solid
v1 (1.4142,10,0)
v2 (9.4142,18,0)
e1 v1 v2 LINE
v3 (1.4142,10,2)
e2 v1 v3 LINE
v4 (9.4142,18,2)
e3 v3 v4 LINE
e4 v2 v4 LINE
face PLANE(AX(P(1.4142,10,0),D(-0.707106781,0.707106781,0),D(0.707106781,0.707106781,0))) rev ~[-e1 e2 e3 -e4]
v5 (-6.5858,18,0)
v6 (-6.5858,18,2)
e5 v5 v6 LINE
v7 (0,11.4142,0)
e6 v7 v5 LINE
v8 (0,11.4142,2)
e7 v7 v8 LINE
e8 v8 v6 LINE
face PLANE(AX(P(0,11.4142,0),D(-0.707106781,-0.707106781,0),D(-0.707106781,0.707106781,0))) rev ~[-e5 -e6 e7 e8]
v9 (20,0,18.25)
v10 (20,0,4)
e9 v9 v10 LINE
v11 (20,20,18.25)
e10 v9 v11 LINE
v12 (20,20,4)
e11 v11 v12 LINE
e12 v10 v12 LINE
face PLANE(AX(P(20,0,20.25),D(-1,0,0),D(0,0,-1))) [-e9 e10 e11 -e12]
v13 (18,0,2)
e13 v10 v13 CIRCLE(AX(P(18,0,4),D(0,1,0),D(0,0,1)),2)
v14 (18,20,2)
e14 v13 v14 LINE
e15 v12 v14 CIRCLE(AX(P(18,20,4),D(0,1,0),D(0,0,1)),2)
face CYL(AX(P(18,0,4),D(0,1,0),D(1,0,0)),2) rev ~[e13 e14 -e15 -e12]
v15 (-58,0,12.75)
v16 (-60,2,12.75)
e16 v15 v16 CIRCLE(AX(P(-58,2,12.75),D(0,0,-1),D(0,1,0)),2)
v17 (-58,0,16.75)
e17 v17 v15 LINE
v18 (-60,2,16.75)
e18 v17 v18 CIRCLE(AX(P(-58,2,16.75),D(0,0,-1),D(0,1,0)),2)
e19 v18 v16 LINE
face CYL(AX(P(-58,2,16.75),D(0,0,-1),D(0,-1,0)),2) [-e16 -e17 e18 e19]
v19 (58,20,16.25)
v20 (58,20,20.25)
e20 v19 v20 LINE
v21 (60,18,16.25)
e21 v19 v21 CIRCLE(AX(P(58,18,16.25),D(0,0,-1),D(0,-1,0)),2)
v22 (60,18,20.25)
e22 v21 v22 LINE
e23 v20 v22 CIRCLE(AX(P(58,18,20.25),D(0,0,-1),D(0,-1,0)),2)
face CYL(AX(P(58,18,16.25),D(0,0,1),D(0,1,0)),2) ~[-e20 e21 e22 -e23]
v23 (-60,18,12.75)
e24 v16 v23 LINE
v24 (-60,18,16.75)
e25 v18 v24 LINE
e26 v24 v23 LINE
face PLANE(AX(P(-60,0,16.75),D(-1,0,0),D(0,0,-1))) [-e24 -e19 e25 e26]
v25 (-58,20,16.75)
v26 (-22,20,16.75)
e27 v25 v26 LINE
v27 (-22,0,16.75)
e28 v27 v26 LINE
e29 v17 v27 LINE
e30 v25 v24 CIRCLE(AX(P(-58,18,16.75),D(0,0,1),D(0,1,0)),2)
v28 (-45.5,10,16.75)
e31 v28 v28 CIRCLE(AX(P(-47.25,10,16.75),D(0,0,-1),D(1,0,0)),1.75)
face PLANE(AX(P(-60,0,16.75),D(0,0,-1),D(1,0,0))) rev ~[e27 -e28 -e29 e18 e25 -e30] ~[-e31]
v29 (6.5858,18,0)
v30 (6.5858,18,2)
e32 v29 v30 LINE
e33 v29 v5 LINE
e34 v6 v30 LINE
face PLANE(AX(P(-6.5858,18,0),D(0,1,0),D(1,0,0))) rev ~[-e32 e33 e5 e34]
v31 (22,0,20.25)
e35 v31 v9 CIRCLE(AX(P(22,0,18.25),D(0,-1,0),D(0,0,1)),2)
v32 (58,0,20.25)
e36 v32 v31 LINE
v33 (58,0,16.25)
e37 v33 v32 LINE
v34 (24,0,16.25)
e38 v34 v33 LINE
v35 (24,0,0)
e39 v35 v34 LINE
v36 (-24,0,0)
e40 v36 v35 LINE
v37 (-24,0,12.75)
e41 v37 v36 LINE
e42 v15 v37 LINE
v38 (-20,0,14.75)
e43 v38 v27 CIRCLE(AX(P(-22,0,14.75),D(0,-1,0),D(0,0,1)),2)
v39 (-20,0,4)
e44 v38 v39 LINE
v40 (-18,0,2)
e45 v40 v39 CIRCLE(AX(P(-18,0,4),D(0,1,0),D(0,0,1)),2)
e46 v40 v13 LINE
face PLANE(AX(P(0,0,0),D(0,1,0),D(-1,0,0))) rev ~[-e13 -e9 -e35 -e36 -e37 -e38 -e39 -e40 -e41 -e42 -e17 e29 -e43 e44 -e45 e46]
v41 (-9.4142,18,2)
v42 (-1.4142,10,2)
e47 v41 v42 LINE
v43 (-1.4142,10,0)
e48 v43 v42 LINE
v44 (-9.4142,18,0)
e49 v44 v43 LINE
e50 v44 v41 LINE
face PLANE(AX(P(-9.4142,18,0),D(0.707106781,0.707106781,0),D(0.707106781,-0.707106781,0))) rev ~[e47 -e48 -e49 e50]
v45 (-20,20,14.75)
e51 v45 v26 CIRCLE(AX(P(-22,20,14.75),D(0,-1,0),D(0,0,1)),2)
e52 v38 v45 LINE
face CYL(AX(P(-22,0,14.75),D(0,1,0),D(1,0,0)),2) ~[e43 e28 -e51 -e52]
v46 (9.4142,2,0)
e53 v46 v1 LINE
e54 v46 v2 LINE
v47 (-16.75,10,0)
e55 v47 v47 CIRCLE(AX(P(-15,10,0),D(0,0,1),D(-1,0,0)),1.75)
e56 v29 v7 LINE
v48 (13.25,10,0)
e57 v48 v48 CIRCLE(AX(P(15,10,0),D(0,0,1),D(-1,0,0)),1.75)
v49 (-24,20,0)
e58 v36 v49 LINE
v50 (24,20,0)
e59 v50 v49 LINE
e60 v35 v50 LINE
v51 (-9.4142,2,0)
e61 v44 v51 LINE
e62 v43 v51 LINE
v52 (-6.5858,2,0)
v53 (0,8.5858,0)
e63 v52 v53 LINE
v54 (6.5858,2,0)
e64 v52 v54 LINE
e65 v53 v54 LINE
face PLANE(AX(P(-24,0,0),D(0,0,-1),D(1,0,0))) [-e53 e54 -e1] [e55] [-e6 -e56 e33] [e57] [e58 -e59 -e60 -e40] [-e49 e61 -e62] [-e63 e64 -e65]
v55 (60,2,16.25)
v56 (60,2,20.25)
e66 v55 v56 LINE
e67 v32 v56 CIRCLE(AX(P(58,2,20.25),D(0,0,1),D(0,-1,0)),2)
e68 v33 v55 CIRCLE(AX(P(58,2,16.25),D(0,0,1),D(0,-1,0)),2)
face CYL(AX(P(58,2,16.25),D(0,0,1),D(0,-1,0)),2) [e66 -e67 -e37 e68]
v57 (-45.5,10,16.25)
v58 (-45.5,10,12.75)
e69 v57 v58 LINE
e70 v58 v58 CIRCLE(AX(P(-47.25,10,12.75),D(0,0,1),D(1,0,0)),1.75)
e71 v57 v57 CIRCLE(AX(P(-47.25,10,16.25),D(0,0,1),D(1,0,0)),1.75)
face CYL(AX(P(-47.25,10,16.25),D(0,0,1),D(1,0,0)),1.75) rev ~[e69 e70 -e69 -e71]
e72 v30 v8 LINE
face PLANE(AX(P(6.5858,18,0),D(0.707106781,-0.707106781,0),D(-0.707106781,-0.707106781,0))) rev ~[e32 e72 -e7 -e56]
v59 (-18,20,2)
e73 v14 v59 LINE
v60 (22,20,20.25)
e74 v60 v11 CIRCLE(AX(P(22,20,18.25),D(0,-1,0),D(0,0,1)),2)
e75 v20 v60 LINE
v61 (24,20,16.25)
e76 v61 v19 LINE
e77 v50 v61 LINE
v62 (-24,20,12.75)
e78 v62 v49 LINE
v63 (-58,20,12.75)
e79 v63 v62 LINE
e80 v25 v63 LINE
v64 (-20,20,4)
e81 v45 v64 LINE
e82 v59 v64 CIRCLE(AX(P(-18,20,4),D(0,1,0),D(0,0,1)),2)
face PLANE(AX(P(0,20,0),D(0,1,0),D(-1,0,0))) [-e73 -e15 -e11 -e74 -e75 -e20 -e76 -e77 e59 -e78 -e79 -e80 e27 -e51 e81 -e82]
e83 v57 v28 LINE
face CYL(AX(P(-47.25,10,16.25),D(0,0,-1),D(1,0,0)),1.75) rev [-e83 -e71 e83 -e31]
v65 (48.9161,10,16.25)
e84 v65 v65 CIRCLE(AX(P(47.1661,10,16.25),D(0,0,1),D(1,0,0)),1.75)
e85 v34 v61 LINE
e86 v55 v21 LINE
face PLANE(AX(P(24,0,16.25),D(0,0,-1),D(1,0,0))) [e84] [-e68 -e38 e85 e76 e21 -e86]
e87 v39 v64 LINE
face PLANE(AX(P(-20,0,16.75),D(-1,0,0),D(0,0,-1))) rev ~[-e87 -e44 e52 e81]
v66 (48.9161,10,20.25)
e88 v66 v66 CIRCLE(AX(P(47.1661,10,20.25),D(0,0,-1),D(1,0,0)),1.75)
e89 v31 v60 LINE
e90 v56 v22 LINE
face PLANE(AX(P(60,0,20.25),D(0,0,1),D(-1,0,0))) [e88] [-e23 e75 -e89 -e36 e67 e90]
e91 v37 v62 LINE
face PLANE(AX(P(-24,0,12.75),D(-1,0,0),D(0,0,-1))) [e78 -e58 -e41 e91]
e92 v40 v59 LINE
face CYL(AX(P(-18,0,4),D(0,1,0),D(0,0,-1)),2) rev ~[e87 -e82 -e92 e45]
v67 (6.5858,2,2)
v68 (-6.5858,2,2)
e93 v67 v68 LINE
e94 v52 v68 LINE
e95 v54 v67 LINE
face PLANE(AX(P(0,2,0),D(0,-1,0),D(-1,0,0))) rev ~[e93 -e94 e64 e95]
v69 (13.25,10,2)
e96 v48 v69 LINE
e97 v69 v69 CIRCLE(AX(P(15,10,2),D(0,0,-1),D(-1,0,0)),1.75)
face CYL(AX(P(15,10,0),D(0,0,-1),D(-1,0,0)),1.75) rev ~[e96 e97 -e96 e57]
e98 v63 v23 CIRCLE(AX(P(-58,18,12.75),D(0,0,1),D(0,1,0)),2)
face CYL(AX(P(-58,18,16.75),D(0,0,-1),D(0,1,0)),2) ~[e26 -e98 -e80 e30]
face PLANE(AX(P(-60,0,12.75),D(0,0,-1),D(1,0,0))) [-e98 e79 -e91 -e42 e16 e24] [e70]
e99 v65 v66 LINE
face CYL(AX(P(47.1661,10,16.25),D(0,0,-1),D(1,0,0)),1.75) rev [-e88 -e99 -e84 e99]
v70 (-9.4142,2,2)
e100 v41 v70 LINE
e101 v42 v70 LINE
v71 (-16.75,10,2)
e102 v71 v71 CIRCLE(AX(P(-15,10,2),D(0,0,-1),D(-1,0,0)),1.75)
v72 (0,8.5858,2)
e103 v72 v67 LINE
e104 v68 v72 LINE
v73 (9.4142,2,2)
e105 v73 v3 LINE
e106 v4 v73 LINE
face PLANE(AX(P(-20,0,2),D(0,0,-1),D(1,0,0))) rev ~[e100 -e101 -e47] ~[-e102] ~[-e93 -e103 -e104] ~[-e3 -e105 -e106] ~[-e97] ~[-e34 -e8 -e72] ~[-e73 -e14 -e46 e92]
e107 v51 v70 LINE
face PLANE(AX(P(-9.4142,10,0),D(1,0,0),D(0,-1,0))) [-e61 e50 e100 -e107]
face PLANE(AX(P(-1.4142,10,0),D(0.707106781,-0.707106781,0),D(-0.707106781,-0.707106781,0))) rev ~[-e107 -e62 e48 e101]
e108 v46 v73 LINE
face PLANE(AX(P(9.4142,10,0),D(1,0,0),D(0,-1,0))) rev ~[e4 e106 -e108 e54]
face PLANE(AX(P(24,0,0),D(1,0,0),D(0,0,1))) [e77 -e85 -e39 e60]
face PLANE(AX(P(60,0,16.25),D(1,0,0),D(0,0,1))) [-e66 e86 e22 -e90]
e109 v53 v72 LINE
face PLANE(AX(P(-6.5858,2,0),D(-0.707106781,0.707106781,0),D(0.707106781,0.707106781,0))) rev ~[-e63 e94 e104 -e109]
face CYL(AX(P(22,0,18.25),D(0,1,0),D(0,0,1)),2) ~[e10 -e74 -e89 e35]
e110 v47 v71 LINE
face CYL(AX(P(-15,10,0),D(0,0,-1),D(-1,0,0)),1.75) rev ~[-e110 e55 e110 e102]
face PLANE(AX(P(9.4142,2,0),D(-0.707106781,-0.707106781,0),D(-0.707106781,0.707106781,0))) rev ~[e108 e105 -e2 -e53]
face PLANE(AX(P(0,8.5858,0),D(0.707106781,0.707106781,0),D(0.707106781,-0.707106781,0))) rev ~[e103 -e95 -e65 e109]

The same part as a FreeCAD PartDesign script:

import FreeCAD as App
import Part
import Sketcher
from FreeCAD import Vector
Q = App.Units.Quantity


def edges_at(feature, points):
    """Names of the edges that pass closest to the given points."""
    edges = feature.Shape.Edges
    near = lambda p: min(range(len(edges)), key=lambda i: edges[i].distToShape(Part.Vertex(*p))[0])
    return sorted({f"Edge{near(p) + 1}" for p in points})

doc = App.newDocument("Part")
body = doc.addObject("PartDesign::Body", "Body")

# Sketch on XZ plane
sketch1 = body.newObject("Sketcher::SketchObject", "Sketch")
sketch1.AttachmentSupport = (doc.getObject("XZ_Plane"), [""])
sketch1.MapMode = "FlatFace"
sketch1.addGeometry(Part.LineSegment(Vector(-20, 2, 0), Vector(20, 2, 0)), False)
sketch1.addGeometry(Part.LineSegment(Vector(20, 2, 0), Vector(20, 20.25, 0)), False)
sketch1.addGeometry(Part.LineSegment(Vector(20, 20.25, 0), Vector(60, 20.25, 0)), False)
sketch1.addGeometry(Part.LineSegment(Vector(60, 20.25, 0), Vector(60, 16.25, 0)), False)
sketch1.addGeometry(Part.LineSegment(Vector(60, 16.25, 0), Vector(24, 16.25, 0)), False)
sketch1.addGeometry(Part.LineSegment(Vector(24, 16.25, 0), Vector(24, 0, 0)), False)
sketch1.addGeometry(Part.LineSegment(Vector(24, 0, 0), Vector(-24, 0, 0)), False)
sketch1.addGeometry(Part.LineSegment(Vector(-24, 0, 0), Vector(-24, 12.75, 0)), False)
sketch1.addGeometry(Part.LineSegment(Vector(-24, 12.75, 0), Vector(-60, 12.75, 0)), False)
sketch1.addGeometry(Part.LineSegment(Vector(-60, 12.75, 0), Vector(-60, 16.75, 0)), False)
sketch1.addGeometry(Part.LineSegment(Vector(-60, 16.75, 0), Vector(-20, 16.75, 0)), False)
sketch1.addGeometry(Part.LineSegment(Vector(-20, 16.75, 0), Vector(-20, 2, 0)), False)
sketch1.addConstraint(Sketcher.Constraint("Coincident", 0, 2, 1, 1))
sketch1.addConstraint(Sketcher.Constraint("Coincident", 1, 2, 2, 1))
sketch1.addConstraint(Sketcher.Constraint("Coincident", 2, 2, 3, 1))
sketch1.addConstraint(Sketcher.Constraint("Coincident", 3, 2, 4, 1))
sketch1.addConstraint(Sketcher.Constraint("Coincident", 4, 2, 5, 1))
sketch1.addConstraint(Sketcher.Constraint("Coincident", 5, 2, 6, 1))
sketch1.addConstraint(Sketcher.Constraint("Coincident", 6, 2, 7, 1))
sketch1.addConstraint(Sketcher.Constraint("Coincident", 7, 2, 8, 1))
sketch1.addConstraint(Sketcher.Constraint("Coincident", 8, 2, 9, 1))
sketch1.addConstraint(Sketcher.Constraint("Coincident", 9, 2, 10, 1))
sketch1.addConstraint(Sketcher.Constraint("Coincident", 10, 2, 11, 1))
sketch1.addConstraint(Sketcher.Constraint("Coincident", 11, 2, 0, 1))
sketch1.addConstraint(Sketcher.Constraint("Horizontal", 0))
sketch1.addConstraint(Sketcher.Constraint("Vertical", 1))
sketch1.addConstraint(Sketcher.Constraint("Horizontal", 2))
sketch1.addConstraint(Sketcher.Constraint("Vertical", 3))
sketch1.addConstraint(Sketcher.Constraint("Horizontal", 4))
sketch1.addConstraint(Sketcher.Constraint("Vertical", 5))
sketch1.addConstraint(Sketcher.Constraint("Horizontal", 6))
sketch1.addConstraint(Sketcher.Constraint("Vertical", 7))
sketch1.addConstraint(Sketcher.Constraint("Horizontal", 8))
sketch1.addConstraint(Sketcher.Constraint("Vertical", 9))
sketch1.addConstraint(Sketcher.Constraint("Horizontal", 10))
sketch1.addConstraint(Sketcher.Constraint("Vertical", 11))
sketch1.addConstraint(Sketcher.Constraint("Symmetric", 5, 2, 6, 2, -1, 1))
sketch1.addConstraint(Sketcher.Constraint("Equal", 0, 2))
sketch1.addConstraint(Sketcher.Constraint("Equal", 4, 8))
sketch1.addConstraint(Sketcher.Constraint("Equal", 2, 10))
sketch1.addConstraint(Sketcher.Constraint("Equal", 3, 9))
sketch1.addConstraint(Sketcher.Constraint("DistanceX", 0, 1, 0, 2, Q("40 mm")))
sketch1.addConstraint(Sketcher.Constraint("DistanceX", 4, 2, 4, 1, Q("36 mm")))
sketch1.addConstraint(Sketcher.Constraint("DistanceY", 3, 2, 3, 1, Q("4 mm")))
sketch1.addConstraint(Sketcher.Constraint("DistanceY", -1, 1, 0, 2, Q("2 mm")))
sketch1.addConstraint(Sketcher.Constraint("DistanceY", 5, 2, 5, 1, Q("16.25 mm")))
sketch1.addConstraint(Sketcher.Constraint("DistanceY", 7, 1, 7, 2, Q("12.75 mm")))
pad1 = body.newObject("PartDesign::Pad", "Pad")
pad1.Profile = sketch1
pad1.Length = 20
pad1.Reversed = True

# Sketch on XY plane
sketch2 = body.newObject("Sketcher::SketchObject", "Sketch001")
sketch2.AttachmentSupport = (doc.getObject("XY_Plane"), [""])
sketch2.MapMode = "FlatFace"
sketch2.addGeometry(Part.Circle(Vector(-15, 10, 0), Vector(0, 0, 1), 1.75), False)
sketch2.addGeometry(Part.Circle(Vector(15, 10, 0), Vector(0, 0, 1), 1.75), False)
sketch2.addGeometry(Part.LineSegment(Vector(-9.4142, 2, 0), Vector(-9.4142, 18, 0)), False)
sketch2.addGeometry(Part.LineSegment(Vector(-9.4142, 18, 0), Vector(-1.4142, 10, 0)), False)
sketch2.addGeometry(Part.LineSegment(Vector(-1.4142, 10, 0), Vector(-9.4142, 2, 0)), False)
sketch2.addGeometry(Part.LineSegment(Vector(-6.5858, 18, 0), Vector(6.5858, 18, 0)), False)
sketch2.addGeometry(Part.LineSegment(Vector(6.5858, 18, 0), Vector(0, 11.4142, 0)), False)
sketch2.addGeometry(Part.LineSegment(Vector(0, 11.4142, 0), Vector(-6.5858, 18, 0)), False)
sketch2.addGeometry(Part.LineSegment(Vector(-6.5858, 2, 0), Vector(0, 8.5858, 0)), False)
sketch2.addGeometry(Part.LineSegment(Vector(0, 8.5858, 0), Vector(6.5858, 2, 0)), False)
sketch2.addGeometry(Part.LineSegment(Vector(6.5858, 2, 0), Vector(-6.5858, 2, 0)), False)
sketch2.addGeometry(Part.LineSegment(Vector(9.4142, 2, 0), Vector(1.4142, 10, 0)), False)
sketch2.addGeometry(Part.LineSegment(Vector(1.4142, 10, 0), Vector(9.4142, 18, 0)), False)
sketch2.addGeometry(Part.LineSegment(Vector(9.4142, 18, 0), Vector(9.4142, 2, 0)), False)
sketch2.addConstraint(Sketcher.Constraint("Coincident", 2, 2, 3, 1))
sketch2.addConstraint(Sketcher.Constraint("Coincident", 3, 2, 4, 1))
sketch2.addConstraint(Sketcher.Constraint("Coincident", 4, 2, 2, 1))
sketch2.addConstraint(Sketcher.Constraint("Coincident", 5, 2, 6, 1))
sketch2.addConstraint(Sketcher.Constraint("Coincident", 6, 2, 7, 1))
sketch2.addConstraint(Sketcher.Constraint("Coincident", 7, 2, 5, 1))
sketch2.addConstraint(Sketcher.Constraint("Coincident", 8, 2, 9, 1))
sketch2.addConstraint(Sketcher.Constraint("Coincident", 9, 2, 10, 1))
sketch2.addConstraint(Sketcher.Constraint("Coincident", 10, 2, 8, 1))
sketch2.addConstraint(Sketcher.Constraint("Coincident", 11, 2, 12, 1))
sketch2.addConstraint(Sketcher.Constraint("Coincident", 12, 2, 13, 1))
sketch2.addConstraint(Sketcher.Constraint("Coincident", 13, 2, 11, 1))
sketch2.addConstraint(Sketcher.Constraint("Vertical", 2))
sketch2.addConstraint(Sketcher.Constraint("Horizontal", 5))
sketch2.addConstraint(Sketcher.Constraint("Horizontal", 10))
sketch2.addConstraint(Sketcher.Constraint("Vertical", 13))
sketch2.addConstraint(Sketcher.Constraint("Equal", 0, 1))
sketch2.addConstraint(Sketcher.Constraint("Symmetric", 0, 3, 1, 3, -2))
sketch2.addConstraint(Sketcher.Constraint("Symmetric", 3, 2, 11, 2, -2))
sketch2.addConstraint(Sketcher.Constraint("Symmetric", 2, 2, 12, 2, -2))
sketch2.addConstraint(Sketcher.Constraint("PointOnObject", 6, 2, -2))
sketch2.addConstraint(Sketcher.Constraint("PointOnObject", 8, 2, -2))
sketch2.addConstraint(Sketcher.Constraint("Perpendicular", 3, 4))
sketch2.addConstraint(Sketcher.Constraint("Parallel", 4, 6))
sketch2.addConstraint(Sketcher.Constraint("Perpendicular", 6, 7))
sketch2.addConstraint(Sketcher.Constraint("Perpendicular", 7, 8))
sketch2.addConstraint(Sketcher.Constraint("Perpendicular", 8, 9))
sketch2.addConstraint(Sketcher.Constraint("Parallel", 9, 11))
sketch2.addConstraint(Sketcher.Constraint("Perpendicular", 11, 12))
sketch2.addConstraint(Sketcher.Constraint("Horizontal", 1, 3, 3, 2))
sketch2.addConstraint(Sketcher.Constraint("Horizontal", 2, 2, 5, 2))
sketch2.addConstraint(Sketcher.Constraint("Horizontal", 4, 2, 9, 2))
sketch2.addConstraint(Sketcher.Constraint("Vertical", 5, 2, 9, 2))
sketch2.addConstraint(Sketcher.Constraint("Diameter", 0, Q("3.5 mm")))
sketch2.addConstraint(Sketcher.Constraint("DistanceY", 2, 1, 2, 2, Q("16 mm")))
sketch2.addConstraint(Sketcher.Constraint("DistanceY", -1, 1, 4, 2, Q("2 mm")))
sketch2.addConstraint(Sketcher.Constraint("DistanceX", 0, 3, 1, 3, Q("30 mm")))
sketch2.addConstraint(Sketcher.Constraint("DistanceX", 2, 2, 5, 2, Q("16 mm")))
sketch2.addConstraint(Sketcher.Constraint("DistanceX", 5, 1, 5, 2, Q("13.1716 mm")))
pocket1 = body.newObject("PartDesign::Pocket", "Pocket")
pocket1.Profile = sketch2
pocket1.Type = "ThroughAll"
pocket1.Reversed = True

# Sketch on XY plane
sketch3 = body.newObject("Sketcher::SketchObject", "Sketch002")
sketch3.AttachmentSupport = (doc.getObject("XY_Plane"), [""])
sketch3.MapMode = "FlatFace"
sketch3.AttachmentOffset = App.Placement(Vector(0, 0, 16.25), App.Rotation())
sketch3.addGeometry(Part.Circle(Vector(-47.25, 10, 0), Vector(0, 0, 1), 1.75), False)
sketch3.addGeometry(Part.Circle(Vector(47.1661, 10, 0), Vector(0, 0, 1), 1.75), False)
sketch3.addConstraint(Sketcher.Constraint("Equal", 0, 1))
sketch3.addConstraint(Sketcher.Constraint("Horizontal", 0, 3, 1, 3))
sketch3.addConstraint(Sketcher.Constraint("Diameter", 0, Q("3.5 mm")))
sketch3.addConstraint(Sketcher.Constraint("DistanceY", -1, 1, 0, 3, Q("10 mm")))
sketch3.addConstraint(Sketcher.Constraint("DistanceX", 0, 3, -1, 1, Q("47.25 mm")))
sketch3.addConstraint(Sketcher.Constraint("DistanceX", -1, 1, 1, 3, Q("47.166 mm")))
pocket2 = body.newObject("PartDesign::Pocket", "Pocket001")
pocket2.Profile = sketch3
pocket2.Type = "ThroughAll"
pocket2.Midplane = True
doc.recompute()

fillet = body.newObject("PartDesign::Fillet", "Fillet")
fillet.Base = (pocket2, edges_at(pocket2, [
    (60, 20, 18.25),
    (60, 0, 18.25),
    (-60, 20, 14.75),
    (-60, 0, 14.75),
]))
fillet.Radius = 2
doc.recompute()

fillet2 = body.newObject("PartDesign::Fillet", "Fillet001")
fillet2.Base = (fillet, edges_at(fillet, [
    (-20, 10, 16.75),
    (-20, 10, 2),
    (20, 10, 2),
    (20, 10, 20.25),
]))
fillet2.Radius = 2

doc.recompute()
